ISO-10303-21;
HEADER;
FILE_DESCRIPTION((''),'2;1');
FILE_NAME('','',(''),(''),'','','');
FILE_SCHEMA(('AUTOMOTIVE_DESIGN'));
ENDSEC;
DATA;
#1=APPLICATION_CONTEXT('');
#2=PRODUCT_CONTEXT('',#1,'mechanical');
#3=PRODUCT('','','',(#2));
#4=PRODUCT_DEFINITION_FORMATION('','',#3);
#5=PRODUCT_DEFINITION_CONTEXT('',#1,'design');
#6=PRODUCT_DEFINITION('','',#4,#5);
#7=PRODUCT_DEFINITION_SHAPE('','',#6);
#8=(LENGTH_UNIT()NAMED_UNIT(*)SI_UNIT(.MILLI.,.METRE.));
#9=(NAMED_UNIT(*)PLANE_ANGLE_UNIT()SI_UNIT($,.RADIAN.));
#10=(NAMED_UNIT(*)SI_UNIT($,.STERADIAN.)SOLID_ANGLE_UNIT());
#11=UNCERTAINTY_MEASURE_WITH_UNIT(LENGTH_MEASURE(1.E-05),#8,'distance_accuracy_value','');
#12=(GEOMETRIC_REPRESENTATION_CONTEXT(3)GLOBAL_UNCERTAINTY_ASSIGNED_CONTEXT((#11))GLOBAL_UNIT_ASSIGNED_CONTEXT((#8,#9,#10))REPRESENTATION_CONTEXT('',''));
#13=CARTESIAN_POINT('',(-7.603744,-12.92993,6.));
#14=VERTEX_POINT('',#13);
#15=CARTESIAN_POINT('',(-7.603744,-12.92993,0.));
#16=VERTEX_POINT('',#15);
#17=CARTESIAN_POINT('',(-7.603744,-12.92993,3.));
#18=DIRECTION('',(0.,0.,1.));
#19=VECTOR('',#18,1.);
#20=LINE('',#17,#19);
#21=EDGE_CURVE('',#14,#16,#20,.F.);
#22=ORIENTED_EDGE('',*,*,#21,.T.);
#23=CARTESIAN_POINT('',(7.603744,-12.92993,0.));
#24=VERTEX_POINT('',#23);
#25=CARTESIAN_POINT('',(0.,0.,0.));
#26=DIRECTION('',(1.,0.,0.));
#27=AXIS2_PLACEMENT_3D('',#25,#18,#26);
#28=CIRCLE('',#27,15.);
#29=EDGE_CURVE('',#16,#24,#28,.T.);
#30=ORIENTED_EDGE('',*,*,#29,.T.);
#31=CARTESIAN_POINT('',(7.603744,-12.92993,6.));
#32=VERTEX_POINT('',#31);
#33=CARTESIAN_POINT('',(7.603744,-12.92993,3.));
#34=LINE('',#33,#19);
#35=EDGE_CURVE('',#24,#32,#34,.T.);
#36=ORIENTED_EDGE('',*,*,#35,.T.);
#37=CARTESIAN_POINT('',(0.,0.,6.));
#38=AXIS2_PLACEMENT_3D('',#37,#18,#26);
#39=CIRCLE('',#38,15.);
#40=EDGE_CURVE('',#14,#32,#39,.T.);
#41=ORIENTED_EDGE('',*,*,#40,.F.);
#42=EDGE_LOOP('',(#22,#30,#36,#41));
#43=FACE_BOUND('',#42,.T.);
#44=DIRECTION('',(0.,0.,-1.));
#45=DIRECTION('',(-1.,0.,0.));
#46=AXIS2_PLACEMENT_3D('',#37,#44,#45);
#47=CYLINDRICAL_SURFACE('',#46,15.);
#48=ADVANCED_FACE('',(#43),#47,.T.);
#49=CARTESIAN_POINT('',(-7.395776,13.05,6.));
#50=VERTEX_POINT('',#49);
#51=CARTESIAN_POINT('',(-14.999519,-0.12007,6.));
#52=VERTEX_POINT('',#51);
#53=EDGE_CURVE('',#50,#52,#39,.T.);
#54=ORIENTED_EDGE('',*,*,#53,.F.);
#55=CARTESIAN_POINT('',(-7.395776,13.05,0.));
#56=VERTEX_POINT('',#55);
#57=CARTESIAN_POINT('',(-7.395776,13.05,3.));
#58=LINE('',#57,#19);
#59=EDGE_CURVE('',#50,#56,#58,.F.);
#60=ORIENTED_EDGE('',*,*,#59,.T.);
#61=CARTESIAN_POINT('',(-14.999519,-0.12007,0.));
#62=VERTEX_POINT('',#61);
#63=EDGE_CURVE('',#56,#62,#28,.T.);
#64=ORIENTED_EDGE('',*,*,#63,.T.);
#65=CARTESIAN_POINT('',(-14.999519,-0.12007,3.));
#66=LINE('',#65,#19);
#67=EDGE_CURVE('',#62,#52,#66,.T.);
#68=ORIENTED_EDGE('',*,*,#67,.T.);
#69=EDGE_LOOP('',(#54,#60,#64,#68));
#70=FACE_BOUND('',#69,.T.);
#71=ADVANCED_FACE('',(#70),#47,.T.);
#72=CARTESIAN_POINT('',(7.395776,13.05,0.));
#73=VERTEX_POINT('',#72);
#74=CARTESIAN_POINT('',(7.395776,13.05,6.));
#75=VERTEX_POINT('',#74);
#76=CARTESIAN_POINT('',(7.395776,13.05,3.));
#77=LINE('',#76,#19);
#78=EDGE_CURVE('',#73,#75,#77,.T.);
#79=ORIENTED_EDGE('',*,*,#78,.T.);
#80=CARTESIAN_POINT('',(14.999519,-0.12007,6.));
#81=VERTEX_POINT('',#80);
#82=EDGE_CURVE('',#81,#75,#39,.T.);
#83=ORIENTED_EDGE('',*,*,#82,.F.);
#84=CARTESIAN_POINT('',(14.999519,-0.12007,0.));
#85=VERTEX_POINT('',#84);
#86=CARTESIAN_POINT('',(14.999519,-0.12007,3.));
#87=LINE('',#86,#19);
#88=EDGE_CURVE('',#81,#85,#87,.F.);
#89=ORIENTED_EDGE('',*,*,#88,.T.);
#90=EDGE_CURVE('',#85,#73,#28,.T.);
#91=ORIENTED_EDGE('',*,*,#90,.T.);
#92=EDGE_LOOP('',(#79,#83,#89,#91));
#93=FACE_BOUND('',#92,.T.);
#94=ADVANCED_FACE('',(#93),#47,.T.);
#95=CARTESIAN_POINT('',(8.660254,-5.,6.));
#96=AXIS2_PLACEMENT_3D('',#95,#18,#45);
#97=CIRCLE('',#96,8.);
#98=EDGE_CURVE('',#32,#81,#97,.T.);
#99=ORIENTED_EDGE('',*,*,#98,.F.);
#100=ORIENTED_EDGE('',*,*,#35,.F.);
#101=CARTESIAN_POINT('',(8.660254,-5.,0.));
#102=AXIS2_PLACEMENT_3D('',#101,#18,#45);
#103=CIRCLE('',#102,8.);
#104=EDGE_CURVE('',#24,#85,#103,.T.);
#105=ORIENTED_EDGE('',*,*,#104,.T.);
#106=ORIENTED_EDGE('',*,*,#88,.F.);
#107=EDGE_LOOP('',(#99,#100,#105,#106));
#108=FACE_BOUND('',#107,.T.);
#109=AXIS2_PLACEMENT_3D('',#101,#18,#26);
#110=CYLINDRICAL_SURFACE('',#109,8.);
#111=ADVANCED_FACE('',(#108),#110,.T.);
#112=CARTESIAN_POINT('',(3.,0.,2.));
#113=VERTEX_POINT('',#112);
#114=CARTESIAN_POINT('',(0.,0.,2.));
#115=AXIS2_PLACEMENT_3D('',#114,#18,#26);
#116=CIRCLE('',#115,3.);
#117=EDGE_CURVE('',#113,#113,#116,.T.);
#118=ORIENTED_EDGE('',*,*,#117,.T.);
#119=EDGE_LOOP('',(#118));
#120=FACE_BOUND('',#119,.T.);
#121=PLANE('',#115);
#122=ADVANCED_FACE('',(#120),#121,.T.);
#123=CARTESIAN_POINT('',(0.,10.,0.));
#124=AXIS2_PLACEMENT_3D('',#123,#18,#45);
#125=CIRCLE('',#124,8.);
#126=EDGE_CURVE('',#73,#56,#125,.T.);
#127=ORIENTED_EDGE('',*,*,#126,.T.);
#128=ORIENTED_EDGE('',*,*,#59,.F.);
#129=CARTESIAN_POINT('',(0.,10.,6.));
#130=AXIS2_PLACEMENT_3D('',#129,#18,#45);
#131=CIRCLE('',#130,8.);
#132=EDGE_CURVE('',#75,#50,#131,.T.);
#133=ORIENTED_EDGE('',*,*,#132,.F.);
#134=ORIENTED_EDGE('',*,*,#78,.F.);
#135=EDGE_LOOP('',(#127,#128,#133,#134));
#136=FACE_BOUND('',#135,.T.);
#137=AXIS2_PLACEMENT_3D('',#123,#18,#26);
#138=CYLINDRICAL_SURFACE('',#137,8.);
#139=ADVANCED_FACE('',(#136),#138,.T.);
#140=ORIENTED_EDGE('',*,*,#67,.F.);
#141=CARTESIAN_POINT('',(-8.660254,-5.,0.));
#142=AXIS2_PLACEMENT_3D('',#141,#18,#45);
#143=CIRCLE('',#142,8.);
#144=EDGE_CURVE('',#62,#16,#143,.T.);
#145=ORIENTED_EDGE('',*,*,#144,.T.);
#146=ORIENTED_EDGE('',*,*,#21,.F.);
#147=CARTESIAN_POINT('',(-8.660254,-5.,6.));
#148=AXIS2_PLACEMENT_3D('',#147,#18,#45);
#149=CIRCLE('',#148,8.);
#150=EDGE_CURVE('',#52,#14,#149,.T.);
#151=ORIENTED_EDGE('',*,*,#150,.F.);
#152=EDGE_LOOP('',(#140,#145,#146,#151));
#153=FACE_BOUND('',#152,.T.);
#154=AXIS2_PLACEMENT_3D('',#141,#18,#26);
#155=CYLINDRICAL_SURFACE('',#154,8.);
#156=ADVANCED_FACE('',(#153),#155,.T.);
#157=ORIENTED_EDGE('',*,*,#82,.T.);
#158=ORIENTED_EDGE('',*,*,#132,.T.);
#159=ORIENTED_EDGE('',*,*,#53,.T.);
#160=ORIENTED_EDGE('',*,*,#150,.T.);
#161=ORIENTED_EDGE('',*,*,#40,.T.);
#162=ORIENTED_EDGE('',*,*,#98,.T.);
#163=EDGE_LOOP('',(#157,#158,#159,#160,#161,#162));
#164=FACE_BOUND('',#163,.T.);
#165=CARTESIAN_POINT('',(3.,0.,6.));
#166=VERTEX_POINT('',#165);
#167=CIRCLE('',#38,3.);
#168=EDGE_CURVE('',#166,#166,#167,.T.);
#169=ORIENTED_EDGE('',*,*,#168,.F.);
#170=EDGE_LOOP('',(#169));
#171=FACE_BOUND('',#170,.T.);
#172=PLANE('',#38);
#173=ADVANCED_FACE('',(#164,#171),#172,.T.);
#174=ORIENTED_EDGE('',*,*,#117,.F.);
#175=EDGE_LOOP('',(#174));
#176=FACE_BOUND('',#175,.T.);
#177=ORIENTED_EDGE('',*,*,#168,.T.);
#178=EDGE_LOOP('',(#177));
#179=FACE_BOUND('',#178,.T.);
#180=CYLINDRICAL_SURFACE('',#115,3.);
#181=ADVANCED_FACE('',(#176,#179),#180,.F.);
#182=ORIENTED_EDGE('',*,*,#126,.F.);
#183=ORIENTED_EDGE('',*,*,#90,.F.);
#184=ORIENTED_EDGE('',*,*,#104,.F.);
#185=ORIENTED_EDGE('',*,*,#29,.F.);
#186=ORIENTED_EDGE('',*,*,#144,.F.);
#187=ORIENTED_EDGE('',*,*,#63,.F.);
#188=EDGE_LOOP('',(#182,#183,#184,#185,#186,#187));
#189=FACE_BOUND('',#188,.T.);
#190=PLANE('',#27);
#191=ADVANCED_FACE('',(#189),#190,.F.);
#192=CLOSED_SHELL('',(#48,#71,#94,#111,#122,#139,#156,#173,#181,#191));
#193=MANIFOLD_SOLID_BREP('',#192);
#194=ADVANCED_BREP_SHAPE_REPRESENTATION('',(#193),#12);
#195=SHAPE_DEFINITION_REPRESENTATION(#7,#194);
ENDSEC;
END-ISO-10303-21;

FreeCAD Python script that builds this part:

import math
import FreeCAD as App
import Part
import Sketcher
from FreeCAD import Vector
Q = App.Units.Quantity

doc = App.newDocument("Part")
params = doc.addObject("Spreadsheet::Sheet", "Params")
for row, (alias, value) in enumerate([
    ("sketch1_diameter", "30 mm"),
    ("pad1_length", "6 mm"),
    ("sketch2_diameter", "6 mm"),
    ("pocket1_length", "4 mm"),
    ("sketch3_radius", "8 mm"),
    ("pad2_length", "6 mm"),
], start=1):
    params.set(f"A{row}", alias)
    params.set(f"B{row}", "=" + value)
    params.setAlias(f"B{row}", alias)

body = doc.addObject("PartDesign::Body", "Body")

sketch1 = body.newObject("Sketcher::SketchObject", "Sketch")
sketch1.AttachmentSupport = (doc.getObject("XY_Plane"), [""])
sketch1.MapMode = "FlatFace"
sketch1.addGeometry(Part.Circle(Vector(0, 0, 0), Vector(0, 0, 1), 15), False)
sketch1.addConstraint([
    Sketcher.Constraint("Coincident", 0, 3, -1, 1),
    Sketcher.Constraint("Diameter", 0, Q("30 mm")),
])
sketch1.setExpression("Constraints[1]", "Params.sketch1_diameter")
pad1 = body.newObject("PartDesign::Pad", "Pad")
pad1.Profile = sketch1
pad1.setExpression("Length", "Params.pad1_length")

sketch2 = body.newObject("Sketcher::SketchObject", "Sketch001")
sketch2.AttachmentSupport = (doc.getObject("XY_Plane"), [""])
sketch2.MapMode = "FlatFace"
sketch2.AttachmentOffset = App.Placement(Vector(0, 0, 6), App.Rotation())
sketch2.addGeometry(Part.Circle(Vector(0, 0, 0), Vector(0, 0, 1), 3), False)
sketch2.addConstraint([
    Sketcher.Constraint("Coincident", 0, 3, -1, 1),
    Sketcher.Constraint("Diameter", 0, Q("6 mm")),
])
sketch2.setExpression("Constraints[1]", "Params.sketch2_diameter")
pocket1 = body.newObject("PartDesign::Pocket", "Pocket")
pocket1.Profile = sketch2
pocket1.setExpression("Length", "Params.pocket1_length")

sketch3 = body.newObject("Sketcher::SketchObject", "Sketch002")
sketch3.AttachmentSupport = (doc.getObject("XY_Plane"), [""])
sketch3.MapMode = "FlatFace"
sketch3.AttachmentOffset = App.Placement(Vector(0, 0, 6), App.Rotation())
sketch3.addGeometry([
    Part.LineSegment(Vector(-8, 10, 0), Vector(8, 10, 0)),
    Part.ArcOfCircle(Part.Circle(Vector(0, 10, 0), Vector(0, 0, 1), 8), math.radians(0), math.radians(180)),
    Part.LineSegment(Vector(13, 2, 0), Vector(5, -12, 0)),
    Part.ArcOfCircle(Part.Circle(Vector(9, -5, 0), Vector(0, 0, 1), 8), math.radians(-120), math.radians(60)),
    Part.LineSegment(Vector(-5, -12, 0), Vector(-13, 2, 0)),
    Part.ArcOfCircle(Part.Circle(Vector(-9, -5, 0), Vector(0, 0, 1), 8), math.radians(120), math.radians(300)),
], False)
sketch3.addConstraint([
    Sketcher.Constraint("Coincident", 0, 1, 1, 2),
    Sketcher.Constraint("Coincident", 1, 1, 0, 2),
    Sketcher.Constraint("Coincident", 2, 1, 3, 2),
    Sketcher.Constraint("Coincident", 3, 1, 2, 2),
    Sketcher.Constraint("Coincident", 4, 1, 5, 2),
    Sketcher.Constraint("Coincident", 5, 1, 4, 2),
    Sketcher.Constraint("Horizontal", 0),
    Sketcher.Constraint("Equal", 1, 3),
    Sketcher.Constraint("Equal", 3, 5),
    Sketcher.Constraint("Symmetric", 3, 3, 5, 3, -2),
    Sketcher.Constraint("PointOnObject", 1, 3, -2),
    Sketcher.Constraint("Horizontal", 1, 3, 0, 1),
    Sketcher.Constraint("Horizontal", 3, 1, 4, 1),
    Sketcher.Constraint("Horizontal", 2, 1, 5, 1),
    Sketcher.Constraint("Radius", 1, Q("8 mm")),
    Sketcher.Constraint("Angle", 2, Q("-120 deg")),
    Sketcher.Constraint("DistanceY", -1, 1, 1, 3, Q("10 mm")),
    Sketcher.Constraint("DistanceY", 3, 3, -1, 1, Q("5 mm")),
    Sketcher.Constraint("DistanceX", 3, 3, 2, 1, Q("4 mm")),
    Sketcher.Constraint("DistanceX", 5, 3, 3, 3, Q("17.320508 mm")),
])
sketch3.setExpression("Constraints[14]", "Params.sketch3_radius")
pad2 = body.newObject("PartDesign::Pad", "Pad001")
pad2.Profile = sketch3
pad2.setExpression("Length", "Params.pad2_length")
pad2.Reversed = True

doc.recompute()
